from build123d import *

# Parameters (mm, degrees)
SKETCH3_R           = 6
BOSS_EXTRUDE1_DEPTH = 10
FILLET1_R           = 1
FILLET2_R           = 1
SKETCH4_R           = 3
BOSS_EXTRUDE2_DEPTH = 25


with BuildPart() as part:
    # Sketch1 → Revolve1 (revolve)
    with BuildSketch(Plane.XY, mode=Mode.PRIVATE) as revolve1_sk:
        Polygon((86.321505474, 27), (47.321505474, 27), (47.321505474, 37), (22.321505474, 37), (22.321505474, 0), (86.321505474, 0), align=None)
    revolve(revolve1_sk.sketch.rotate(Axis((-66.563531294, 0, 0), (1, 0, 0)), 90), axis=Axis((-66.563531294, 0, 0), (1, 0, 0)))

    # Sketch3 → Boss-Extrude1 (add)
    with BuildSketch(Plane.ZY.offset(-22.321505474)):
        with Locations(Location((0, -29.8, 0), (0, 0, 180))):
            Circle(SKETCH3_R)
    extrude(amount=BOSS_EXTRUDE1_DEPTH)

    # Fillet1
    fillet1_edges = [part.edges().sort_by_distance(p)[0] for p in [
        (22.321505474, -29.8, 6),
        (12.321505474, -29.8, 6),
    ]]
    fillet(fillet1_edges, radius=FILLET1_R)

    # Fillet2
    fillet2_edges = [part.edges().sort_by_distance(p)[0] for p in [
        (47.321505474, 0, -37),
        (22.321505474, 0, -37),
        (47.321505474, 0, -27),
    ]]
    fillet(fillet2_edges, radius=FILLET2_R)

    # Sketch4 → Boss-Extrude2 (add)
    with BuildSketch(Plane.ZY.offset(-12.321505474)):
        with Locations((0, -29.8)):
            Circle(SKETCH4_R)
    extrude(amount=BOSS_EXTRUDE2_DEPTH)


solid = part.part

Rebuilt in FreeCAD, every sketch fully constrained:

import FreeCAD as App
import Part
import Sketcher
from FreeCAD import Vector
Q = App.Units.Quantity


def edges_at(feature, points):
    """Names of the edges that pass closest to the given points."""
    edges = feature.Shape.Edges
    near = lambda p: min(range(len(edges)), key=lambda i: edges[i].distToShape(Part.Vertex(*p))[0])
    return sorted({f"Edge{near(p) + 1}" for p in points})

doc = App.newDocument("Part")
body = doc.addObject("PartDesign::Body", "Body")

# Sketch on XY plane
sketch1 = body.newObject("Sketcher::SketchObject", "Sketch")
sketch1.AttachmentSupport = (doc.getObject("XY_Plane"), [""])
sketch1.MapMode = "FlatFace"
sketch1.addGeometry(Part.LineSegment(Vector(86, 27, 0), Vector(47, 27, 0)), False)
sketch1.addGeometry(Part.LineSegment(Vector(47, 27, 0), Vector(47, 37, 0)), False)
sketch1.addGeometry(Part.LineSegment(Vector(47, 37, 0), Vector(22, 37, 0)), False)
sketch1.addGeometry(Part.LineSegment(Vector(22, 37, 0), Vector(22, 0, 0)), False)
sketch1.addGeometry(Part.LineSegment(Vector(22, 0, 0), Vector(86, 0, 0)), False)
sketch1.addGeometry(Part.LineSegment(Vector(86, 0, 0), Vector(86, 27, 0)), False)
sketch1.addConstraint(Sketcher.Constraint("Coincident", 0, 2, 1, 1))
sketch1.addConstraint(Sketcher.Constraint("Coincident", 1, 2, 2, 1))
sketch1.addConstraint(Sketcher.Constraint("Coincident", 2, 2, 3, 1))
sketch1.addConstraint(Sketcher.Constraint("Coincident", 3, 2, 4, 1))
sketch1.addConstraint(Sketcher.Constraint("Coincident", 4, 2, 5, 1))
sketch1.addConstraint(Sketcher.Constraint("Coincident", 5, 2, 0, 1))
sketch1.addConstraint(Sketcher.Constraint("Horizontal", 0))
sketch1.addConstraint(Sketcher.Constraint("Vertical", 1))
sketch1.addConstraint(Sketcher.Constraint("Horizontal", 2))
sketch1.addConstraint(Sketcher.Constraint("Vertical", 3))
sketch1.addConstraint(Sketcher.Constraint("Horizontal", 4))
sketch1.addConstraint(Sketcher.Constraint("Vertical", 5))
sketch1.addConstraint(Sketcher.Constraint("PointOnObject", 3, 2, -1))
sketch1.addConstraint(Sketcher.Constraint("DistanceX", 0, 2, 0, 1, Q("39 mm")))
sketch1.addConstraint(Sketcher.Constraint("DistanceX", 2, 2, 2, 1, Q("25 mm")))
sketch1.addConstraint(Sketcher.Constraint("DistanceY", 1, 1, 1, 2, Q("10 mm")))
sketch1.addConstraint(Sketcher.Constraint("DistanceY", 3, 2, 3, 1, Q("37 mm")))
sketch1.addConstraint(Sketcher.Constraint("DistanceX", -1, 1, 0, 2, Q("47.321505 mm")))
revolution = body.newObject("PartDesign::Revolution", "Revolution")
revolution.Profile = sketch1
revolution.ReferenceAxis = (sketch1, ["H_Axis"])
revolution.Angle = 360

# Sketch on YZ plane
sketch2 = body.newObject("Sketcher::SketchObject", "Sketch001")
sketch2.AttachmentSupport = (doc.getObject("YZ_Plane"), [""])
sketch2.MapMode = "FlatFace"
sketch2.AttachmentOffset = App.Placement(Vector(0, 0, 22.321505), App.Rotation())
sketch2.addGeometry(Part.Circle(Vector(-30, 0, 0), Vector(0, 0, 1), 6), False)
sketch2.addConstraint(Sketcher.Constraint("PointOnObject", 0, 3, -1))
sketch2.addConstraint(Sketcher.Constraint("Diameter", 0, Q("12 mm")))
sketch2.addConstraint(Sketcher.Constraint("DistanceX", 0, 3, -1, 1, Q("29.8 mm")))
pad1 = body.newObject("PartDesign::Pad", "Pad")
pad1.Profile = sketch2
pad1.Length = 10
pad1.Reversed = True
doc.recompute()

fillet = body.newObject("PartDesign::Fillet", "Fillet")
fillet.Base = (pad1, edges_at(pad1, [(22.322, -29.8, 6), (12.322, -29.8, 6)]))
fillet.Radius = 1
doc.recompute()

fillet2 = body.newObject("PartDesign::Fillet", "Fillet001")
fillet2.Base = (fillet, edges_at(fillet, [(47.322, 0, -37), (22.322, 0, -37), (47.322, 0, -27)]))
fillet2.Radius = 1

# Sketch on YZ plane
sketch3 = body.newObject("Sketcher::SketchObject", "Sketch002")
sketch3.AttachmentSupport = (doc.getObject("YZ_Plane"), [""])
sketch3.MapMode = "FlatFace"
sketch3.AttachmentOffset = App.Placement(Vector(0, 0, 12.321505), App.Rotation())
sketch3.addGeometry(Part.Circle(Vector(-29.8, 0, 0), Vector(0, 0, 1), 3), False)
sketch3.addConstraint(Sketcher.Constraint("PointOnObject", 0, 3, -1))
sketch3.addConstraint(Sketcher.Constraint("Diameter", 0, Q("6 mm")))
sketch3.addConstraint(Sketcher.Constraint("DistanceX", 0, 3, -1, 1, Q("29.8 mm")))
pad2 = body.newObject("PartDesign::Pad", "Pad001")
pad2.Profile = sketch3
pad2.Length = 25
pad2.Reversed = True

doc.recompute()
